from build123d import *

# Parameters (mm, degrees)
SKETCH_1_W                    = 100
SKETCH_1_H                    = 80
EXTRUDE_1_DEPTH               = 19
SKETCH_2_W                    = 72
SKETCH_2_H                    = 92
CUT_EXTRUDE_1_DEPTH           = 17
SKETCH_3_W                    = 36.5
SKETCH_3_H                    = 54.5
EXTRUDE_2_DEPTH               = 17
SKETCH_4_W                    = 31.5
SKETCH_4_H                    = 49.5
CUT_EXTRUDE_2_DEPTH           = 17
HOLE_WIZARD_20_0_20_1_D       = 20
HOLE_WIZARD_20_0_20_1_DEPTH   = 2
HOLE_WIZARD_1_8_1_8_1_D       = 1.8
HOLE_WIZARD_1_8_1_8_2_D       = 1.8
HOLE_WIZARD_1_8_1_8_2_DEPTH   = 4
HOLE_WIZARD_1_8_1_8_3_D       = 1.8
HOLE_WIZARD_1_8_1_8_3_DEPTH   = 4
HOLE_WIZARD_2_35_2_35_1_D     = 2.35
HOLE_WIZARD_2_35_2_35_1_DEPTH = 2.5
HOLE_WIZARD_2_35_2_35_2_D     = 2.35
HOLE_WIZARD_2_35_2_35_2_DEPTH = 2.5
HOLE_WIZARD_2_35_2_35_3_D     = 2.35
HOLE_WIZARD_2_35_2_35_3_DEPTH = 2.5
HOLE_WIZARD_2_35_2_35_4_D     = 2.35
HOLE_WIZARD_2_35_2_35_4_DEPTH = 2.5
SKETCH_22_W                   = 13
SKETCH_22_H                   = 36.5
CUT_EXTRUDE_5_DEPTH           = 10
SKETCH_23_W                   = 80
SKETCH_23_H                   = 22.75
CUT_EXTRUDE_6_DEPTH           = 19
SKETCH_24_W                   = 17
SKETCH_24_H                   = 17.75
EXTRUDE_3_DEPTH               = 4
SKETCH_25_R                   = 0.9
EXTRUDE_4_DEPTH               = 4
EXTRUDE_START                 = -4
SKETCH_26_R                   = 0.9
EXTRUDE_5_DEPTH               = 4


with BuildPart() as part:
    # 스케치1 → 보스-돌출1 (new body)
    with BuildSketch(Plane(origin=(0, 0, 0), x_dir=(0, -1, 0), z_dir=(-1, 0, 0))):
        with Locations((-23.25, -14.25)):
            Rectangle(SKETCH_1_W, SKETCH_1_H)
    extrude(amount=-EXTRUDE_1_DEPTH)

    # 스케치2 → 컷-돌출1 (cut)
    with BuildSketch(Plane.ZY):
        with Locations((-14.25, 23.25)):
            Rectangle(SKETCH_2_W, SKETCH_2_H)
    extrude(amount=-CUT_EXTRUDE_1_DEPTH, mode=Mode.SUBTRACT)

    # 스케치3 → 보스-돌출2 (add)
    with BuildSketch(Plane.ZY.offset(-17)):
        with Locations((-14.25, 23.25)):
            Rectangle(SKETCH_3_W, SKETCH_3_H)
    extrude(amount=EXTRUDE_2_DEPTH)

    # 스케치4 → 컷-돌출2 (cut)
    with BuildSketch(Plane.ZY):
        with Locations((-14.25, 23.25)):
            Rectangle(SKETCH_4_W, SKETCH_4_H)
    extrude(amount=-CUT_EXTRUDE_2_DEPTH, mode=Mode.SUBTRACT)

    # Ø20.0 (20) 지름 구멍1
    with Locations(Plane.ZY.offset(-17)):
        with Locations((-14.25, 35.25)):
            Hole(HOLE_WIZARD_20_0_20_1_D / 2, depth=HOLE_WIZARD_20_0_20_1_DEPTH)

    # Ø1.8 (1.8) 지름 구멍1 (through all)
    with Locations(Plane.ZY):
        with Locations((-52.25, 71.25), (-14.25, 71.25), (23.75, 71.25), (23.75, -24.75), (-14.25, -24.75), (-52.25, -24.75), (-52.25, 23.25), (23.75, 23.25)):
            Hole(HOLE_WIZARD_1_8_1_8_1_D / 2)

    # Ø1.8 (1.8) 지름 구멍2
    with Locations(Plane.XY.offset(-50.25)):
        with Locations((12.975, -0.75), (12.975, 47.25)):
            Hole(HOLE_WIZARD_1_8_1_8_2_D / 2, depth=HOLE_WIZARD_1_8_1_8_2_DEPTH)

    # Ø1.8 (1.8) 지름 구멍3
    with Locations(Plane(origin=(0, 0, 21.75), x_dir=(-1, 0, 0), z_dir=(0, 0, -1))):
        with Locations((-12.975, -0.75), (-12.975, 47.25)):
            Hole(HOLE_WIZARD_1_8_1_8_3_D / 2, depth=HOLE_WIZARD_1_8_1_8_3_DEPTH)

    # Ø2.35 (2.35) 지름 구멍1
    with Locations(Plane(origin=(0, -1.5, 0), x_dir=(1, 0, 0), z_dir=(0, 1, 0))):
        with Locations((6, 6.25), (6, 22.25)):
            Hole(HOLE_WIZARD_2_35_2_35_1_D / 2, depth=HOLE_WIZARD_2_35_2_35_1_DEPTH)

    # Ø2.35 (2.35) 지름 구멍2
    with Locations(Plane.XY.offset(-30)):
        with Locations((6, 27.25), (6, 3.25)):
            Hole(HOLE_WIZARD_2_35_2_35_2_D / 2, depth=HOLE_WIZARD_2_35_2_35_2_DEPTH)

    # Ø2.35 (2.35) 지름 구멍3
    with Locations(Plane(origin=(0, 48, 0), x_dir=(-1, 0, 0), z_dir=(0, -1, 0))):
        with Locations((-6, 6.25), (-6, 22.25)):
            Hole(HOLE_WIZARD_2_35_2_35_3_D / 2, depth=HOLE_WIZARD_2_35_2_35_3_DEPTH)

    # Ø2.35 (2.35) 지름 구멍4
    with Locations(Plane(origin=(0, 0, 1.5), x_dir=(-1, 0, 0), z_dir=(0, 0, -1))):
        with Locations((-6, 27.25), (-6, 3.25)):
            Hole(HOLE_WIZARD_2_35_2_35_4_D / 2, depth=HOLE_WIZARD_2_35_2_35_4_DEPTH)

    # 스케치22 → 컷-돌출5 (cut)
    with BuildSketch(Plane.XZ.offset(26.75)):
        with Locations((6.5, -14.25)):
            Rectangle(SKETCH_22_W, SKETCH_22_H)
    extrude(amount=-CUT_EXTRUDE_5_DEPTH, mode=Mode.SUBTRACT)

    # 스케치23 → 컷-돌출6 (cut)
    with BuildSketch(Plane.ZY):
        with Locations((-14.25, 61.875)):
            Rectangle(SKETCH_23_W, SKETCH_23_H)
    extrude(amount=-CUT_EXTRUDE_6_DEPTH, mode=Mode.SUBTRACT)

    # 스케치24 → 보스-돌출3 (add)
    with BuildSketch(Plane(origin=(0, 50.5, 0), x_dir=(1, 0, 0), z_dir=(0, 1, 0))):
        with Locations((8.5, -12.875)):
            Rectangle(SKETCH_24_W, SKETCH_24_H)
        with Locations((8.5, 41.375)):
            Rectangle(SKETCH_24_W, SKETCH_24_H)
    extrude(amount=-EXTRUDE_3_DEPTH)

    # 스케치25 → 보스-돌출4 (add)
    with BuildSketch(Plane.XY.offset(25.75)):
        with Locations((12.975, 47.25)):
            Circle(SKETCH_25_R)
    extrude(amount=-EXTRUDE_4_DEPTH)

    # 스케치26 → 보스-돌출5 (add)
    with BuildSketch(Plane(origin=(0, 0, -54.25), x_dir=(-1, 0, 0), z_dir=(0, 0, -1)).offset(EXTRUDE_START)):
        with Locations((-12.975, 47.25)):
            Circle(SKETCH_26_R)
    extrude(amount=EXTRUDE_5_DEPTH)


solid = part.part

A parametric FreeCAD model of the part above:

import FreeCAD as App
import Part
import Sketcher

V = App.Vector


def add_polygon(sketch, points):
    """Adds a closed chain of lines whose ends are joined by coincident constraints."""
    first, n = sketch.GeometryCount, len(points)
    for a, b in zip(points, points[1:] + points[:1]):
        sketch.addGeometry(Part.LineSegment(App.Vector(*a, 0), App.Vector(*b, 0)), False)
    for i in range(n):
        sketch.addConstraint(Sketcher.Constraint("Coincident", first + i, 2, first + (i + 1) % n, 1))

doc = App.newDocument("Part")
body = doc.addObject("PartDesign::Body", "Body")

# Sketch on YZ plane
sketch1 = body.newObject("Sketcher::SketchObject", "Sketch")
sketch1.AttachmentSupport = (doc.getObject("YZ_Plane"), [""])
sketch1.MapMode = "FlatFace"
add_polygon(sketch1, [(73, 26), (73, -54), (-27, -54), (-27, 26)])  # lines 0-3
sketch1.addConstraint(Sketcher.Constraint("Vertical", 0))
sketch1.addConstraint(Sketcher.Constraint("Horizontal", 1))
sketch1.addConstraint(Sketcher.Constraint("Vertical", 2))
sketch1.addConstraint(Sketcher.Constraint("Horizontal", 3))
sketch1.addConstraint(Sketcher.Constraint("DistanceX", 1, 2, 1, 1, 100.0))
sketch1.addConstraint(Sketcher.Constraint("DistanceY", 0, 2, 0, 1, 80.0))
sketch1.addConstraint(Sketcher.Constraint("DistanceX", -1, 1, 0, 2, 73.25))
sketch1.addConstraint(Sketcher.Constraint("DistanceY", 0, 2, -1, 1, 54.25))
pad1 = body.newObject("PartDesign::Pad", "Pad")
pad1.Profile = sketch1
pad1.Length = 19

# Sketch on YZ plane
sketch2 = body.newObject("Sketcher::SketchObject", "Sketch001")
sketch2.AttachmentSupport = (doc.getObject("YZ_Plane"), [""])
sketch2.MapMode = "FlatFace"
add_polygon(sketch2, [(69, -50), (-23, -50), (-23, 22), (69, 22)])  # lines 0-3
sketch2.addConstraint(Sketcher.Constraint("Horizontal", 0))
sketch2.addConstraint(Sketcher.Constraint("Vertical", 1))
sketch2.addConstraint(Sketcher.Constraint("Horizontal", 2))
sketch2.addConstraint(Sketcher.Constraint("Vertical", 3))
sketch2.addConstraint(Sketcher.Constraint("DistanceX", 0, 2, 0, 1, 92.0))
sketch2.addConstraint(Sketcher.Constraint("DistanceY", 1, 1, 1, 2, 72.0))
sketch2.addConstraint(Sketcher.Constraint("DistanceX", 0, 2, -1, 1, 22.75))
sketch2.addConstraint(Sketcher.Constraint("DistanceY", 0, 2, -1, 1, 50.25))
pocket1 = body.newObject("PartDesign::Pocket", "Pocket")
pocket1.Profile = sketch2
pocket1.Length = 17
pocket1.Reversed = True

# Sketch on YZ plane
sketch3 = body.newObject("Sketcher::SketchObject", "Sketch002")
sketch3.AttachmentSupport = (doc.getObject("YZ_Plane"), [""])
sketch3.MapMode = "FlatFace"
sketch3.AttachmentOffset = App.Placement(V(0, 0, 17), App.Rotation())
add_polygon(sketch3, [(50, -32), (-4, -32), (-4, 4), (50, 4)])  # lines 0-3
sketch3.addConstraint(Sketcher.Constraint("Horizontal", 0))
sketch3.addConstraint(Sketcher.Constraint("Vertical", 1))
sketch3.addConstraint(Sketcher.Constraint("Horizontal", 2))
sketch3.addConstraint(Sketcher.Constraint("Vertical", 3))
sketch3.addConstraint(Sketcher.Constraint("DistanceX", 0, 2, 0, 1, 54.5))
sketch3.addConstraint(Sketcher.Constraint("DistanceY", 1, 1, 1, 2, 36.5))
sketch3.addConstraint(Sketcher.Constraint("DistanceX", 0, 2, -1, 1, 4.0))
sketch3.addConstraint(Sketcher.Constraint("DistanceY", -1, 1, 1, 2, 4.0))
pad2 = body.newObject("PartDesign::Pad", "Pad001")
pad2.Profile = sketch3
pad2.Length = 17
pad2.Reversed = True

# Sketch on YZ plane
sketch4 = body.newObject("Sketcher::SketchObject", "Sketch003")
sketch4.AttachmentSupport = (doc.getObject("YZ_Plane"), [""])
sketch4.MapMode = "FlatFace"
add_polygon(sketch4, [(48, -30), (-2, -30), (-2, 2), (48, 2)])  # lines 0-3
sketch4.addConstraint(Sketcher.Constraint("Horizontal", 0))
sketch4.addConstraint(Sketcher.Constraint("Vertical", 1))
sketch4.addConstraint(Sketcher.Constraint("Horizontal", 2))
sketch4.addConstraint(Sketcher.Constraint("Vertical", 3))
sketch4.addConstraint(Sketcher.Constraint("DistanceX", 0, 2, 0, 1, 49.5))
sketch4.addConstraint(Sketcher.Constraint("DistanceY", 1, 1, 1, 2, 31.5))
sketch4.addConstraint(Sketcher.Constraint("DistanceY", 0, 2, -1, 1, 30.0))
sketch4.addConstraint(Sketcher.Constraint("DistanceX", -1, 1, 2, 2, 48.0))
pocket2 = body.newObject("PartDesign::Pocket", "Pocket001")
pocket2.Profile = sketch4
pocket2.Length = 17
pocket2.Reversed = True

# Sketch on YZ plane
sketch5 = body.newObject("Sketcher::SketchObject", "Sketch004")
sketch5.AttachmentSupport = (doc.getObject("YZ_Plane"), [""])
sketch5.MapMode = "FlatFace"
sketch5.AttachmentOffset = App.Placement(V(0, 0, 17), App.Rotation())
sketch5.addGeometry(Part.Circle(V(35, -14, 0), V(0, 0, 1), 10), False)
sketch5.addConstraint(Sketcher.Constraint("Diameter", 0, 20.0))
sketch5.addConstraint(Sketcher.Constraint("DistanceX", -1, 1, 0, 3, 35.25))
sketch5.addConstraint(Sketcher.Constraint("DistanceY", 0, 3, -1, 1, 14.25))
doc.recompute()
hole = body.newObject("PartDesign::Hole", "Hole")
hole.Profile = sketch5
hole.ThreadType = "None"
hole.Diameter = 20
hole.DepthType = "Dimension"
hole.Depth = 2
hole.DrillPoint = "Flat"
hole.Reversed = True

# Sketch on YZ plane
sketch6 = body.newObject("Sketcher::SketchObject", "Sketch005")
sketch6.AttachmentSupport = (doc.getObject("YZ_Plane"), [""])
sketch6.MapMode = "FlatFace"
sketch6.addGeometry(Part.Circle(V(71.2, -52.2, 0), V(0, 0, 1), 0.9), False)
sketch6.addGeometry(Part.Circle(V(71.2, -14.2, 0), V(0, 0, 1), 0.9), False)
sketch6.addGeometry(Part.Circle(V(71.2, 23.8, 0), V(0, 0, 1), 0.9), False)
sketch6.addGeometry(Part.Circle(V(-24.8, 23.8, 0), V(0, 0, 1), 0.9), False)
sketch6.addGeometry(Part.Circle(V(-24.8, -14.2, 0), V(0, 0, 1), 0.9), False)
sketch6.addGeometry(Part.Circle(V(-24.8, -52.2, 0), V(0, 0, 1), 0.9), False)
sketch6.addGeometry(Part.Circle(V(23.2, -52.2, 0), V(0, 0, 1), 0.9), False)
sketch6.addGeometry(Part.Circle(V(23.2, 23.8, 0), V(0, 0, 1), 0.9), False)
sketch6.addConstraint(Sketcher.Constraint("Equal", 0, 1))
sketch6.addConstraint(Sketcher.Constraint("Equal", 1, 2))
sketch6.addConstraint(Sketcher.Constraint("Equal", 2, 3))
sketch6.addConstraint(Sketcher.Constraint("Equal", 3, 4))
sketch6.addConstraint(Sketcher.Constraint("Equal", 4, 5))
sketch6.addConstraint(Sketcher.Constraint("Equal", 5, 6))
sketch6.addConstraint(Sketcher.Constraint("Equal", 6, 7))
sketch6.addConstraint(Sketcher.Constraint("Horizontal", 2, 3, 3, 3))
sketch6.addConstraint(Sketcher.Constraint("Horizontal", 1, 3, 4, 3))
sketch6.addConstraint(Sketcher.Constraint("Horizontal", 0, 3, 5, 3))
sketch6.addConstraint(Sketcher.Constraint("Horizontal", 5, 3, 6, 3))
sketch6.addConstraint(Sketcher.Constraint("Horizontal", 3, 3, 7, 3))
sketch6.addConstraint(Sketcher.Constraint("Vertical", 0, 3, 1, 3))
sketch6.addConstraint(Sketcher.Constraint("Vertical", 1, 3, 2, 3))
sketch6.addConstraint(Sketcher.Constraint("Vertical", 3, 3, 4, 3))
sketch6.addConstraint(Sketcher.Constraint("Vertical", 4, 3, 5, 3))
sketch6.addConstraint(Sketcher.Constraint("Vertical", 6, 3, 7, 3))
sketch6.addConstraint(Sketcher.Constraint("Diameter", 0, 1.8))
sketch6.addConstraint(Sketcher.Constraint("DistanceY", 0, 3, 1, 3, 38.0))
sketch6.addConstraint(Sketcher.Constraint("DistanceY", 1, 3, 2, 3, 38.0))
sketch6.addConstraint(Sketcher.Constraint("DistanceX", 3, 3, 2, 3, 96.0))
sketch6.addConstraint(Sketcher.Constraint("DistanceX", 6, 3, 0, 3, 48.0))
sketch6.addConstraint(Sketcher.Constraint("DistanceX", -1, 1, 0, 3, 71.25))
sketch6.addConstraint(Sketcher.Constraint("DistanceY", 0, 3, -1, 1, 52.25))
doc.recompute()
hole2 = body.newObject("PartDesign::Hole", "Hole001")
hole2.Profile = sketch6
hole2.ThreadType = "None"
hole2.Diameter = 1.8
hole2.DepthType = "ThroughAll"
hole2.Reversed = True

# Sketch on XY plane
sketch7 = body.newObject("Sketcher::SketchObject", "Sketch006")
sketch7.AttachmentSupport = (doc.getObject("XY_Plane"), [""])
sketch7.MapMode = "FlatFace"
sketch7.AttachmentOffset = App.Placement(V(0, 0, -50.25), App.Rotation())
sketch7.addGeometry(Part.Circle(V(13, -0.8, 0), V(0, 0, 1), 0.9), False)
sketch7.addGeometry(Part.Circle(V(13, 47.2, 0), V(0, 0, 1), 0.9), False)
sketch7.addConstraint(Sketcher.Constraint("Equal", 0, 1))
sketch7.addConstraint(Sketcher.Constraint("Vertical", 0, 3, 1, 3))
sketch7.addConstraint(Sketcher.Constraint("Diameter", 0, 1.8))
sketch7.addConstraint(Sketcher.Constraint("DistanceY", 0, 3, 1, 3, 48.0))
sketch7.addConstraint(Sketcher.Constraint("DistanceY", 0, 3, -1, 1, 0.75))
sketch7.addConstraint(Sketcher.Constraint("DistanceX", -1, 1, 0, 3, 12.975))
doc.recompute()
hole3 = body.newObject("PartDesign::Hole", "Hole002")
hole3.Profile = sketch7
hole3.ThreadType = "None"
hole3.Diameter = 1.8
hole3.DepthType = "Dimension"
hole3.Depth = 4
hole3.DrillPoint = "Flat"

# Sketch on XY plane
sketch8 = body.newObject("Sketcher::SketchObject", "Sketch007")
sketch8.AttachmentSupport = (doc.getObject("XY_Plane"), [""])
sketch8.MapMode = "FlatFace"
sketch8.AttachmentOffset = App.Placement(V(0, 0, 21.75), App.Rotation())
sketch8.addGeometry(Part.Circle(V(13, -0.8, 0), V(0, 0, 1), 0.9), False)
sketch8.addGeometry(Part.Circle(V(13, 47.2, 0), V(0, 0, 1), 0.9), False)
sketch8.addConstraint(Sketcher.Constraint("Equal", 0, 1))
sketch8.addConstraint(Sketcher.Constraint("Vertical", 0, 3, 1, 3))
sketch8.addConstraint(Sketcher.Constraint("Diameter", 0, 1.8))
sketch8.addConstraint(Sketcher.Constraint("DistanceY", 0, 3, 1, 3, 48.0))
sketch8.addConstraint(Sketcher.Constraint("DistanceY", 0, 3, -1, 1, 0.75))
sketch8.addConstraint(Sketcher.Constraint("DistanceX", -1, 1, 0, 3, 12.975))
doc.recompute()
hole4 = body.newObject("PartDesign::Hole", "Hole003")
hole4.Profile = sketch8
hole4.ThreadType = "None"
hole4.Diameter = 1.8
hole4.DepthType = "Dimension"
hole4.Depth = 4
hole4.DrillPoint = "Flat"
hole4.Reversed = True

# Sketch on XZ plane
sketch9 = body.newObject("Sketcher::SketchObject", "Sketch008")
sketch9.AttachmentSupport = (doc.getObject("XZ_Plane"), [""])
sketch9.MapMode = "FlatFace"
sketch9.AttachmentOffset = App.Placement(V(0, 0, 1.5), App.Rotation())
sketch9.addGeometry(Part.Circle(V(6, -6.2, 0), V(0, 0, 1), 1.2), False)
sketch9.addGeometry(Part.Circle(V(6, -22.2, 0), V(0, 0, 1), 1.2), False)
sketch9.addConstraint(Sketcher.Constraint("Equal", 0, 1))
sketch9.addConstraint(Sketcher.Constraint("Vertical", 0, 3, 1, 3))
sketch9.addConstraint(Sketcher.Constraint("Diameter", 0, 2.35))
sketch9.addConstraint(Sketcher.Constraint("DistanceX", -1, 1, 0, 3, 6.0))
sketch9.addConstraint(Sketcher.Constraint("DistanceY", 1, 3, 0, 3, 16.0))
sketch9.addConstraint(Sketcher.Constraint("DistanceY", 0, 3, -1, 1, 6.25))
doc.recompute()
hole5 = body.newObject("PartDesign::Hole", "Hole004")
hole5.Profile = sketch9
hole5.ThreadType = "None"
hole5.Diameter = 2.35
hole5.DepthType = "Dimension"
hole5.Depth = 2.5
hole5.DrillPoint = "Flat"
hole5.Reversed = True

# Sketch on XY plane
sketch10 = body.newObject("Sketcher::SketchObject", "Sketch009")
sketch10.AttachmentSupport = (doc.getObject("XY_Plane"), [""])
sketch10.MapMode = "FlatFace"
sketch10.AttachmentOffset = App.Placement(V(0, 0, -30), App.Rotation())
sketch10.addGeometry(Part.Circle(V(6, 27.2, 0), V(0, 0, 1), 1.2), False)
sketch10.addGeometry(Part.Circle(V(6, 3.2, 0), V(0, 0, 1), 1.2), False)
sketch10.addConstraint(Sketcher.Constraint("Equal", 0, 1))
sketch10.addConstraint(Sketcher.Constraint("Vertical", 0, 3, 1, 3))
sketch10.addConstraint(Sketcher.Constraint("Diameter", 0, 2.35))
sketch10.addConstraint(Sketcher.Constraint("DistanceX", -1, 1, 0, 3, 6.0))
sketch10.addConstraint(Sketcher.Constraint("DistanceY", 1, 3, 0, 3, 24.0))
sketch10.addConstraint(Sketcher.Constraint("DistanceY", -1, 1, 0, 3, 27.25))
doc.recompute()
hole6 = body.newObject("PartDesign::Hole", "Hole005")
hole6.Profile = sketch10
hole6.ThreadType = "None"
hole6.Diameter = 2.35
hole6.DepthType = "Dimension"
hole6.Depth = 2.5
hole6.DrillPoint = "Flat"

# Sketch on XZ plane
sketch11 = body.newObject("Sketcher::SketchObject", "Sketch010")
sketch11.AttachmentSupport = (doc.getObject("XZ_Plane"), [""])
sketch11.MapMode = "FlatFace"
sketch11.AttachmentOffset = App.Placement(V(0, 0, -48), App.Rotation())
sketch11.addGeometry(Part.Circle(V(6, -6.2, 0), V(0, 0, 1), 1.2), False)
sketch11.addGeometry(Part.Circle(V(6, -22.2, 0), V(0, 0, 1), 1.2), False)
sketch11.addConstraint(Sketcher.Constraint("Equal", 0, 1))
sketch11.addConstraint(Sketcher.Constraint("Vertical", 0, 3, 1, 3))
sketch11.addConstraint(Sketcher.Constraint("Diameter", 0, 2.35))
sketch11.addConstraint(Sketcher.Constraint("DistanceX", -1, 1, 0, 3, 6.0))
sketch11.addConstraint(Sketcher.Constraint("DistanceY", 1, 3, 0, 3, 16.0))
sketch11.addConstraint(Sketcher.Constraint("DistanceY", 0, 3, -1, 1, 6.25))
doc.recompute()
hole7 = body.newObject("PartDesign::Hole", "Hole006")
hole7.Profile = sketch11
hole7.ThreadType = "None"
hole7.Diameter = 2.35
hole7.DepthType = "Dimension"
hole7.Depth = 2.5
hole7.DrillPoint = "Flat"

# Sketch on XY plane
sketch12 = body.newObject("Sketcher::SketchObject", "Sketch011")
sketch12.AttachmentSupport = (doc.getObject("XY_Plane"), [""])
sketch12.MapMode = "FlatFace"
sketch12.AttachmentOffset = App.Placement(V(0, 0, 1.5), App.Rotation())
sketch12.addGeometry(Part.Circle(V(6, 27.2, 0), V(0, 0, 1), 1.2), False)
sketch12.addGeometry(Part.Circle(V(6, 3.2, 0), V(0, 0, 1), 1.2), False)
sketch12.addConstraint(Sketcher.Constraint("Equal", 0, 1))
sketch12.addConstraint(Sketcher.Constraint("Vertical", 0, 3, 1, 3))
sketch12.addConstraint(Sketcher.Constraint("Diameter", 0, 2.35))
sketch12.addConstraint(Sketcher.Constraint("DistanceX", -1, 1, 0, 3, 6.0))
sketch12.addConstraint(Sketcher.Constraint("DistanceY", 1, 3, 0, 3, 24.0))
sketch12.addConstraint(Sketcher.Constraint("DistanceY", -1, 1, 0, 3, 27.25))
doc.recompute()
hole8 = body.newObject("PartDesign::Hole", "Hole007")
hole8.Profile = sketch12
hole8.ThreadType = "None"
hole8.Diameter = 2.35
hole8.DepthType = "Dimension"
hole8.Depth = 2.5
hole8.DrillPoint = "Flat"
hole8.Reversed = True

# Sketch on XZ plane
sketch13 = body.newObject("Sketcher::SketchObject", "Sketch012")
sketch13.AttachmentSupport = (doc.getObject("XZ_Plane"), [""])
sketch13.MapMode = "FlatFace"
sketch13.AttachmentOffset = App.Placement(V(0, 0, 26.75), App.Rotation())
add_polygon(sketch13, [(0, 4), (0, -32), (13, -32), (13, 4)])  # lines 0-3
sketch13.addConstraint(Sketcher.Constraint("Vertical", 0))
sketch13.addConstraint(Sketcher.Constraint("Horizontal", 1))
sketch13.addConstraint(Sketcher.Constraint("Vertical", 2))
sketch13.addConstraint(Sketcher.Constraint("Horizontal", 3))
sketch13.addConstraint(Sketcher.Constraint("PointOnObject", 0, 2, -2))
sketch13.addConstraint(Sketcher.Constraint("DistanceX", 1, 1, 1, 2, 13.0))
sketch13.addConstraint(Sketcher.Constraint("DistanceY", 0, 2, 0, 1, 36.5))
sketch13.addConstraint(Sketcher.Constraint("DistanceY", -1, 1, 2, 2, 4.0))
pocket3 = body.newObject("PartDesign::Pocket", "Pocket002")
pocket3.Profile = sketch13
pocket3.Length = 10

# Sketch on YZ plane
sketch14 = body.newObject("Sketcher::SketchObject", "Sketch013")
sketch14.AttachmentSupport = (doc.getObject("YZ_Plane"), [""])
sketch14.MapMode = "FlatFace"
add_polygon(sketch14, [(73, -54), (50, -54), (50, 26), (73, 26)])  # lines 0-3
sketch14.addConstraint(Sketcher.Constraint("Horizontal", 0))
sketch14.addConstraint(Sketcher.Constraint("Vertical", 1))
sketch14.addConstraint(Sketcher.Constraint("Horizontal", 2))
sketch14.addConstraint(Sketcher.Constraint("Vertical", 3))
sketch14.addConstraint(Sketcher.Constraint("DistanceY", 1, 1, 1, 2, 80.0))
sketch14.addConstraint(Sketcher.Constraint("DistanceX", 0, 2, 0, 1, 22.75))
sketch14.addConstraint(Sketcher.Constraint("DistanceX", -1, 1, 0, 2, 50.5))
sketch14.addConstraint(Sketcher.Constraint("DistanceY", 0, 2, -1, 1, 54.25))
pocket4 = body.newObject("PartDesign::Pocket", "Pocket003")
pocket4.Profile = sketch14
pocket4.Length = 19
pocket4.Reversed = True

# Sketch on XZ plane
sketch15 = body.newObject("Sketcher::SketchObject", "Sketch014")
sketch15.AttachmentSupport = (doc.getObject("XZ_Plane"), [""])
sketch15.MapMode = "FlatFace"
sketch15.AttachmentOffset = App.Placement(V(0, 0, -50.5), App.Rotation())
add_polygon(sketch15, [(0, 4), (0, 22), (17, 22), (17, 4)])  # lines 0-3
add_polygon(sketch15, [(0, -50), (0, -32), (17, -32), (17, -50)])  # lines 4-7
sketch15.addConstraint(Sketcher.Constraint("Vertical", 0))
sketch15.addConstraint(Sketcher.Constraint("Horizontal", 1))
sketch15.addConstraint(Sketcher.Constraint("Vertical", 2))
sketch15.addConstraint(Sketcher.Constraint("Horizontal", 3))
sketch15.addConstraint(Sketcher.Constraint("Vertical", 4))
sketch15.addConstraint(Sketcher.Constraint("Horizontal", 5))
sketch15.addConstraint(Sketcher.Constraint("Vertical", 6))
sketch15.addConstraint(Sketcher.Constraint("Horizontal", 7))
sketch15.addConstraint(Sketcher.Constraint("PointOnObject", 0, 2, -2))
sketch15.addConstraint(Sketcher.Constraint("PointOnObject", 4, 2, -2))
sketch15.addConstraint(Sketcher.Constraint("Vertical", 2, 2, 5, 2))
sketch15.addConstraint(Sketcher.Constraint("Equal", 2, 4))
sketch15.addConstraint(Sketcher.Constraint("DistanceX", 1, 1, 1, 2, 17.0))
sketch15.addConstraint(Sketcher.Constraint("DistanceY", -1, 1, 2, 2, 4.0))
sketch15.addConstraint(Sketcher.Constraint("DistanceY", 6, 2, 1, 2, 72.0))
sketch15.addConstraint(Sketcher.Constraint("DistanceY", 0, 1, 0, 2, 17.75))
pad3 = body.newObject("PartDesign::Pad", "Pad002")
pad3.Profile = sketch15
pad3.Length = 4

# Sketch on XY plane
sketch16 = body.newObject("Sketcher::SketchObject", "Sketch015")
sketch16.AttachmentSupport = (doc.getObject("XY_Plane"), [""])
sketch16.MapMode = "FlatFace"
sketch16.AttachmentOffset = App.Placement(V(0, 0, 25.75), App.Rotation())
sketch16.addGeometry(Part.Circle(V(13, 47.2, 0), V(0, 0, 1), 0.9), False)
sketch16.addConstraint(Sketcher.Constraint("Diameter", 0, 1.8))
sketch16.addConstraint(Sketcher.Constraint("DistanceY", -1, 1, 0, 3, 47.25))
sketch16.addConstraint(Sketcher.Constraint("DistanceX", -1, 1, 0, 3, 12.975))
pad4 = body.newObject("PartDesign::Pad", "Pad003")
pad4.Profile = sketch16
pad4.Length = 4
pad4.Reversed = True

# Sketch on XY plane
sketch17 = body.newObject("Sketcher::SketchObject", "Sketch016")
sketch17.AttachmentSupport = (doc.getObject("XY_Plane"), [""])
sketch17.MapMode = "FlatFace"
sketch17.AttachmentOffset = App.Placement(V(0, 0, -50.25), App.Rotation())
sketch17.addGeometry(Part.Circle(V(13, 47.2, 0), V(0, 0, 1), 0.9), False)
sketch17.addConstraint(Sketcher.Constraint("Diameter", 0, 1.8))
sketch17.addConstraint(Sketcher.Constraint("DistanceY", -1, 1, 0, 3, 47.25))
sketch17.addConstraint(Sketcher.Constraint("DistanceX", -1, 1, 0, 3, 12.975))
pad5 = body.newObject("PartDesign::Pad", "Pad004")
pad5.Profile = sketch17
pad5.Length = 4
pad5.Reversed = True

doc.recompute()
